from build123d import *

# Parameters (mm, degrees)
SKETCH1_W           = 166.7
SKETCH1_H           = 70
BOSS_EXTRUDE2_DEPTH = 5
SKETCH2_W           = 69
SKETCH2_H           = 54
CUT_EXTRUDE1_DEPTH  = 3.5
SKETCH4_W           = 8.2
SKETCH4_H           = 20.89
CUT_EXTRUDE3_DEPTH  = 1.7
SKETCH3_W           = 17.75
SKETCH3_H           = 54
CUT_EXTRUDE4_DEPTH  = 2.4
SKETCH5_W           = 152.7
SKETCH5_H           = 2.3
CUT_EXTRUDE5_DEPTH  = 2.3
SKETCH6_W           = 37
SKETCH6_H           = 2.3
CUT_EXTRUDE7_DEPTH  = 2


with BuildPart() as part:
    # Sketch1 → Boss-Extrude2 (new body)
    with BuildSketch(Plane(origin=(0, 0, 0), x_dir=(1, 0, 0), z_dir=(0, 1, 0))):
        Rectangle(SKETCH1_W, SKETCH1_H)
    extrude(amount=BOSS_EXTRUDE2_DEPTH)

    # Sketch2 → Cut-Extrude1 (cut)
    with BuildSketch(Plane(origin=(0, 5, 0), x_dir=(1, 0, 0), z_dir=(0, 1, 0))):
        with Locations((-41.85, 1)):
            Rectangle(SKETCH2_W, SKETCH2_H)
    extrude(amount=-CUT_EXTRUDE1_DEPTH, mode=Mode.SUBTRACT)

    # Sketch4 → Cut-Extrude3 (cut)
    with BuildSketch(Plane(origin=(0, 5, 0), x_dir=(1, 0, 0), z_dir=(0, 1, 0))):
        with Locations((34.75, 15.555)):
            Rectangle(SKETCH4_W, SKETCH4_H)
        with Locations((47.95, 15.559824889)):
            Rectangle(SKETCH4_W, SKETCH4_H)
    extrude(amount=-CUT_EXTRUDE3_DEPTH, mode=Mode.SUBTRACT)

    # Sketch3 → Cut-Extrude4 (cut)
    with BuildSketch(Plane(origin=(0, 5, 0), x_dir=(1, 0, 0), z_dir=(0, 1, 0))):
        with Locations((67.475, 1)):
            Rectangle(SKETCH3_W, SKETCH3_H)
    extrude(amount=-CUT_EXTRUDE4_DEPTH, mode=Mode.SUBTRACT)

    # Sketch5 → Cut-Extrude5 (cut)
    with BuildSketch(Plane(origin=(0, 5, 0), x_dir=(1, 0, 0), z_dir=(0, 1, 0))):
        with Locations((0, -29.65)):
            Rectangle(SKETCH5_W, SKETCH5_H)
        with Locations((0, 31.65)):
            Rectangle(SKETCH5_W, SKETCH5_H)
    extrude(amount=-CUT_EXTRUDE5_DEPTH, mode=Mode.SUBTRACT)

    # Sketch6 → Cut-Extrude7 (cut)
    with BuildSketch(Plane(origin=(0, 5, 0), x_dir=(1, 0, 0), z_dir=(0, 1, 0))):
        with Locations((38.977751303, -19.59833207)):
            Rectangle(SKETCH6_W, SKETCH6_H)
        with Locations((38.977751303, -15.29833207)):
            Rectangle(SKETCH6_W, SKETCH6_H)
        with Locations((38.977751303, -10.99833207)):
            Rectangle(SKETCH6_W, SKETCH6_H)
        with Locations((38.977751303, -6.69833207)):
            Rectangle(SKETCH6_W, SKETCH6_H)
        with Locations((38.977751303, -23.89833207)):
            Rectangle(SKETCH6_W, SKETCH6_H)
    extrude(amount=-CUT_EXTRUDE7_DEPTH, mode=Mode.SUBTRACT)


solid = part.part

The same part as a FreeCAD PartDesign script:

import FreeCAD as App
import Part
import Sketcher
from FreeCAD import Vector
Q = App.Units.Quantity


def add_polygon(sketch, points):
    """Adds a closed chain of lines whose ends are joined by coincident constraints."""
    first, n = sketch.GeometryCount, len(points)
    for a, b in zip(points, points[1:] + points[:1]):
        sketch.addGeometry(Part.LineSegment(App.Vector(*a, 0), App.Vector(*b, 0)), False)
    for i in range(n):
        sketch.addConstraint(Sketcher.Constraint("Coincident", first + i, 2, first + (i + 1) % n, 1))

doc = App.newDocument("Part")
body = doc.addObject("PartDesign::Body", "Body")

sketch1 = doc.addObject("Sketcher::SketchObject", "Sketch")
body.addObject(sketch1)
sketch1.AttachmentSupport = (doc.XZ_Plane, [""])
sketch1.MapMode = "FlatFace"
add_polygon(sketch1, [(-83, -35), (-83, 35), (83, 35), (83, -35)])
sketch1.addConstraint([
    Sketcher.Constraint("Vertical", 0),
    Sketcher.Constraint("Horizontal", 1),
    Sketcher.Constraint("Vertical", 2),
    Sketcher.Constraint("Horizontal", 3),
    Sketcher.Constraint("Symmetric", 0, 2, 2, 2, -1, 1),
    Sketcher.Constraint("DistanceY", 0, 1, 0, 2, Q("70 mm")),
    Sketcher.Constraint("DistanceX", 1, 1, 1, 2, Q("166.7 mm")),
])
pad1 = doc.addObject("PartDesign::Pad", "Pad")
body.addObject(pad1)
pad1.Profile = sketch1
pad1.Length = 5
pad1.Reversed = True

sketch2 = doc.addObject("Sketcher::SketchObject", "Sketch001")
body.addObject(sketch2)
sketch2.AttachmentSupport = (doc.XZ_Plane, [""])
sketch2.MapMode = "FlatFace"
sketch2.AttachmentOffset = App.Placement(Vector(0, 0, -5), App.Rotation())
add_polygon(sketch2, [(-76, -28), (-76, 26), (-7, 26), (-7, -28)])
sketch2.addConstraint([
    Sketcher.Constraint("Vertical", 0),
    Sketcher.Constraint("Horizontal", 1),
    Sketcher.Constraint("Vertical", 2),
    Sketcher.Constraint("Horizontal", 3),
    Sketcher.Constraint("DistanceX", 1, 1, 1, 2, Q("69 mm")),
    Sketcher.Constraint("DistanceY", 0, 1, 0, 2, Q("54 mm")),
    Sketcher.Constraint("DistanceY", -1, 1, 0, 2, Q("26 mm")),
    Sketcher.Constraint("DistanceX", 0, 2, -1, 1, Q("76.35 mm")),
])
pocket1 = doc.addObject("PartDesign::Pocket", "Pocket")
body.addObject(pocket1)
pocket1.Profile = sketch2
pocket1.Length = 3.5
pocket1.Reversed = True

sketch3 = doc.addObject("Sketcher::SketchObject", "Sketch002")
body.addObject(sketch3)
sketch3.AttachmentSupport = (doc.XZ_Plane, [""])
sketch3.MapMode = "FlatFace"
sketch3.AttachmentOffset = App.Placement(Vector(0, 0, -5), App.Rotation())
add_polygon(sketch3, [(31, -26), (31, -5), (39, -5), (39, -26)])
add_polygon(sketch3, [(44, -26), (44, -5), (52, -5), (52, -26)])
sketch3.addConstraint([
    Sketcher.Constraint("Vertical", 0),
    Sketcher.Constraint("Horizontal", 1),
    Sketcher.Constraint("Vertical", 2),
    Sketcher.Constraint("Horizontal", 3),
    Sketcher.Constraint("Vertical", 4),
    Sketcher.Constraint("Horizontal", 5),
    Sketcher.Constraint("Vertical", 6),
    Sketcher.Constraint("Horizontal", 7),
    Sketcher.Constraint("Equal", 3, 5),
    Sketcher.Constraint("Equal", 2, 4),
    Sketcher.Constraint("DistanceX", 1, 1, 1, 2, Q("8.2 mm")),
    Sketcher.Constraint("DistanceY", 2, 2, -1, 1, Q("26 mm")),
    Sketcher.Constraint("DistanceX", 1, 2, 4, 2, Q("5 mm")),
    Sketcher.Constraint("DistanceY", 0, 1, 0, 2, Q("20.89 mm")),
    Sketcher.Constraint("DistanceX", -1, 1, 0, 2, Q("30.65 mm")),
    Sketcher.Constraint("DistanceY", 4, 2, -1, 1, Q("5.114825 mm")),
])
pocket2 = doc.addObject("PartDesign::Pocket", "Pocket001")
body.addObject(pocket2)
pocket2.Profile = sketch3
pocket2.Length = 1.7
pocket2.Reversed = True

sketch4 = doc.addObject("Sketcher::SketchObject", "Sketch003")
body.addObject(sketch4)
sketch4.AttachmentSupport = (doc.XZ_Plane, [""])
sketch4.MapMode = "FlatFace"
sketch4.AttachmentOffset = App.Placement(Vector(0, 0, -5), App.Rotation())
add_polygon(sketch4, [(59, -28), (59, 26), (76, 26), (76, -28)])
sketch4.addConstraint([
    Sketcher.Constraint("Vertical", 0),
    Sketcher.Constraint("Horizontal", 1),
    Sketcher.Constraint("Vertical", 2),
    Sketcher.Constraint("Horizontal", 3),
    Sketcher.Constraint("DistanceY", 0, 1, 0, 2, Q("54 mm")),
    Sketcher.Constraint("DistanceY", -1, 1, 0, 2, Q("26 mm")),
    Sketcher.Constraint("DistanceX", 1, 1, 1, 2, Q("17.75 mm")),
    Sketcher.Constraint("DistanceX", -1, 1, 0, 2, Q("58.6 mm")),
])
pocket3 = doc.addObject("PartDesign::Pocket", "Pocket002")
body.addObject(pocket3)
pocket3.Profile = sketch4
pocket3.Length = 2.4
pocket3.Reversed = True

sketch5 = doc.addObject("Sketcher::SketchObject", "Sketch004")
body.addObject(sketch5)
sketch5.AttachmentSupport = (doc.XZ_Plane, [""])
sketch5.MapMode = "FlatFace"
sketch5.AttachmentOffset = App.Placement(Vector(0, 0, -5), App.Rotation())
add_polygon(sketch5, [(-76.3, 28.5), (-76.3, 30.8), (76.3, 30.8), (76.3, 28.5)])
add_polygon(sketch5, [(-76.3, -32.8), (-76.3, -30.5), (76.3, -30.5), (76.3, -32.8)])
sketch5.addConstraint([
    Sketcher.Constraint("Vertical", 0),
    Sketcher.Constraint("Horizontal", 1),
    Sketcher.Constraint("Vertical", 2),
    Sketcher.Constraint("Horizontal", 3),
    Sketcher.Constraint("Vertical", 4),
    Sketcher.Constraint("Horizontal", 5),
    Sketcher.Constraint("Vertical", 6),
    Sketcher.Constraint("Horizontal", 7),
    Sketcher.Constraint("Vertical", 3, 2, 4, 2),
    Sketcher.Constraint("Vertical", 2, 2, 5, 2),
    Sketcher.Constraint("Equal", 2, 4),
    Sketcher.Constraint("DistanceX", 1, 1, 1, 2, Q("152.7 mm")),
    Sketcher.Constraint("DistanceY", 0, 1, 0, 2, Q("2.3 mm")),
    Sketcher.Constraint("DistanceY", 4, 2, 3, 2, Q("59 mm")),
    Sketcher.Constraint("DistanceY", -1, 1, 0, 2, Q("30.8 mm")),
    Sketcher.Constraint("DistanceX", 0, 2, -1, 1, Q("76.35 mm")),
])
pocket4 = doc.addObject("PartDesign::Pocket", "Pocket003")
body.addObject(pocket4)
pocket4.Profile = sketch5
pocket4.Length = 2.3
pocket4.Reversed = True

sketch6 = doc.addObject("Sketcher::SketchObject", "Sketch005")
body.addObject(sketch6)
sketch6.AttachmentSupport = (doc.XZ_Plane, [""])
sketch6.MapMode = "FlatFace"
sketch6.AttachmentOffset = App.Placement(Vector(0, 0, -5), App.Rotation())
add_polygon(sketch6, [(20.5, 18.4), (20.5, 20.7), (57.5, 20.7), (57.5, 18.4)])
add_polygon(sketch6, [(20.5, 14.1), (20.5, 16.4), (57.5, 16.4), (57.5, 14.1)])
add_polygon(sketch6, [(20.5, 9.8), (20.5, 12.1), (57.5, 12.1), (57.5, 9.8)])
add_polygon(sketch6, [(20.5, 5.5), (20.5, 7.8), (57.5, 7.8), (57.5, 5.5)])
add_polygon(sketch6, [(20.5, 22.7), (20.5, 25), (57.5, 25), (57.5, 22.7)])
sketch6.addConstraint([
    Sketcher.Constraint("Vertical", 0),
    Sketcher.Constraint("Horizontal", 1),
    Sketcher.Constraint("Vertical", 2),
    Sketcher.Constraint("Horizontal", 3),
    Sketcher.Constraint("Vertical", 4),
    Sketcher.Constraint("Horizontal", 5),
    Sketcher.Constraint("Vertical", 6),
    Sketcher.Constraint("Horizontal", 7),
    Sketcher.Constraint("Vertical", 8),
    Sketcher.Constraint("Horizontal", 9),
    Sketcher.Constraint("Vertical", 10),
    Sketcher.Constraint("Horizontal", 11),
    Sketcher.Constraint("Vertical", 12),
    Sketcher.Constraint("Horizontal", 13),
    Sketcher.Constraint("Vertical", 14),
    Sketcher.Constraint("Horizontal", 15),
    Sketcher.Constraint("Vertical", 16),
    Sketcher.Constraint("Horizontal", 17),
    Sketcher.Constraint("Vertical", 18),
    Sketcher.Constraint("Horizontal", 19),
    Sketcher.Constraint("Vertical", 3, 2, 4, 2),
    Sketcher.Constraint("Vertical", 2, 2, 5, 2),
    Sketcher.Constraint("Vertical", 7, 2, 8, 2),
    Sketcher.Constraint("Vertical", 6, 2, 9, 2),
    Sketcher.Constraint("Vertical", 11, 2, 12, 2),
    Sketcher.Constraint("Vertical", 10, 2, 13, 2),
    Sketcher.Constraint("Vertical", 15, 2, 16, 2),
    Sketcher.Constraint("Vertical", 14, 2, 17, 2),
    Sketcher.Constraint("Equal", 2, 4),
    Sketcher.Constraint("Equal", 6, 8),
    Sketcher.Constraint("Equal", 10, 12),
    Sketcher.Constraint("Equal", 14, 16),
    Sketcher.Constraint("DistanceX", 1, 1, 1, 2, Q("37 mm")),
    Sketcher.Constraint("DistanceY", 0, 1, 0, 2, Q("2.3 mm")),
    Sketcher.Constraint("DistanceY", 4, 2, 3, 2, Q("2 mm")),
    Sketcher.Constraint("DistanceY", 8, 2, 7, 2, Q("2 mm")),
    Sketcher.Constraint("DistanceY", 12, 2, 11, 2, Q("2 mm")),
    Sketcher.Constraint("DistanceY", 1, 2, 18, 2, Q("2 mm")),
    Sketcher.Constraint("DistanceX", -1, 1, 0, 2, Q("20.477751 mm")),
    Sketcher.Constraint("DistanceY", -1, 1, 0, 2, Q("20.748332 mm")),
])
pocket5 = doc.addObject("PartDesign::Pocket", "Pocket004")
body.addObject(pocket5)
pocket5.Profile = sketch6
pocket5.Length = 2
pocket5.Reversed = True

doc.recompute()
